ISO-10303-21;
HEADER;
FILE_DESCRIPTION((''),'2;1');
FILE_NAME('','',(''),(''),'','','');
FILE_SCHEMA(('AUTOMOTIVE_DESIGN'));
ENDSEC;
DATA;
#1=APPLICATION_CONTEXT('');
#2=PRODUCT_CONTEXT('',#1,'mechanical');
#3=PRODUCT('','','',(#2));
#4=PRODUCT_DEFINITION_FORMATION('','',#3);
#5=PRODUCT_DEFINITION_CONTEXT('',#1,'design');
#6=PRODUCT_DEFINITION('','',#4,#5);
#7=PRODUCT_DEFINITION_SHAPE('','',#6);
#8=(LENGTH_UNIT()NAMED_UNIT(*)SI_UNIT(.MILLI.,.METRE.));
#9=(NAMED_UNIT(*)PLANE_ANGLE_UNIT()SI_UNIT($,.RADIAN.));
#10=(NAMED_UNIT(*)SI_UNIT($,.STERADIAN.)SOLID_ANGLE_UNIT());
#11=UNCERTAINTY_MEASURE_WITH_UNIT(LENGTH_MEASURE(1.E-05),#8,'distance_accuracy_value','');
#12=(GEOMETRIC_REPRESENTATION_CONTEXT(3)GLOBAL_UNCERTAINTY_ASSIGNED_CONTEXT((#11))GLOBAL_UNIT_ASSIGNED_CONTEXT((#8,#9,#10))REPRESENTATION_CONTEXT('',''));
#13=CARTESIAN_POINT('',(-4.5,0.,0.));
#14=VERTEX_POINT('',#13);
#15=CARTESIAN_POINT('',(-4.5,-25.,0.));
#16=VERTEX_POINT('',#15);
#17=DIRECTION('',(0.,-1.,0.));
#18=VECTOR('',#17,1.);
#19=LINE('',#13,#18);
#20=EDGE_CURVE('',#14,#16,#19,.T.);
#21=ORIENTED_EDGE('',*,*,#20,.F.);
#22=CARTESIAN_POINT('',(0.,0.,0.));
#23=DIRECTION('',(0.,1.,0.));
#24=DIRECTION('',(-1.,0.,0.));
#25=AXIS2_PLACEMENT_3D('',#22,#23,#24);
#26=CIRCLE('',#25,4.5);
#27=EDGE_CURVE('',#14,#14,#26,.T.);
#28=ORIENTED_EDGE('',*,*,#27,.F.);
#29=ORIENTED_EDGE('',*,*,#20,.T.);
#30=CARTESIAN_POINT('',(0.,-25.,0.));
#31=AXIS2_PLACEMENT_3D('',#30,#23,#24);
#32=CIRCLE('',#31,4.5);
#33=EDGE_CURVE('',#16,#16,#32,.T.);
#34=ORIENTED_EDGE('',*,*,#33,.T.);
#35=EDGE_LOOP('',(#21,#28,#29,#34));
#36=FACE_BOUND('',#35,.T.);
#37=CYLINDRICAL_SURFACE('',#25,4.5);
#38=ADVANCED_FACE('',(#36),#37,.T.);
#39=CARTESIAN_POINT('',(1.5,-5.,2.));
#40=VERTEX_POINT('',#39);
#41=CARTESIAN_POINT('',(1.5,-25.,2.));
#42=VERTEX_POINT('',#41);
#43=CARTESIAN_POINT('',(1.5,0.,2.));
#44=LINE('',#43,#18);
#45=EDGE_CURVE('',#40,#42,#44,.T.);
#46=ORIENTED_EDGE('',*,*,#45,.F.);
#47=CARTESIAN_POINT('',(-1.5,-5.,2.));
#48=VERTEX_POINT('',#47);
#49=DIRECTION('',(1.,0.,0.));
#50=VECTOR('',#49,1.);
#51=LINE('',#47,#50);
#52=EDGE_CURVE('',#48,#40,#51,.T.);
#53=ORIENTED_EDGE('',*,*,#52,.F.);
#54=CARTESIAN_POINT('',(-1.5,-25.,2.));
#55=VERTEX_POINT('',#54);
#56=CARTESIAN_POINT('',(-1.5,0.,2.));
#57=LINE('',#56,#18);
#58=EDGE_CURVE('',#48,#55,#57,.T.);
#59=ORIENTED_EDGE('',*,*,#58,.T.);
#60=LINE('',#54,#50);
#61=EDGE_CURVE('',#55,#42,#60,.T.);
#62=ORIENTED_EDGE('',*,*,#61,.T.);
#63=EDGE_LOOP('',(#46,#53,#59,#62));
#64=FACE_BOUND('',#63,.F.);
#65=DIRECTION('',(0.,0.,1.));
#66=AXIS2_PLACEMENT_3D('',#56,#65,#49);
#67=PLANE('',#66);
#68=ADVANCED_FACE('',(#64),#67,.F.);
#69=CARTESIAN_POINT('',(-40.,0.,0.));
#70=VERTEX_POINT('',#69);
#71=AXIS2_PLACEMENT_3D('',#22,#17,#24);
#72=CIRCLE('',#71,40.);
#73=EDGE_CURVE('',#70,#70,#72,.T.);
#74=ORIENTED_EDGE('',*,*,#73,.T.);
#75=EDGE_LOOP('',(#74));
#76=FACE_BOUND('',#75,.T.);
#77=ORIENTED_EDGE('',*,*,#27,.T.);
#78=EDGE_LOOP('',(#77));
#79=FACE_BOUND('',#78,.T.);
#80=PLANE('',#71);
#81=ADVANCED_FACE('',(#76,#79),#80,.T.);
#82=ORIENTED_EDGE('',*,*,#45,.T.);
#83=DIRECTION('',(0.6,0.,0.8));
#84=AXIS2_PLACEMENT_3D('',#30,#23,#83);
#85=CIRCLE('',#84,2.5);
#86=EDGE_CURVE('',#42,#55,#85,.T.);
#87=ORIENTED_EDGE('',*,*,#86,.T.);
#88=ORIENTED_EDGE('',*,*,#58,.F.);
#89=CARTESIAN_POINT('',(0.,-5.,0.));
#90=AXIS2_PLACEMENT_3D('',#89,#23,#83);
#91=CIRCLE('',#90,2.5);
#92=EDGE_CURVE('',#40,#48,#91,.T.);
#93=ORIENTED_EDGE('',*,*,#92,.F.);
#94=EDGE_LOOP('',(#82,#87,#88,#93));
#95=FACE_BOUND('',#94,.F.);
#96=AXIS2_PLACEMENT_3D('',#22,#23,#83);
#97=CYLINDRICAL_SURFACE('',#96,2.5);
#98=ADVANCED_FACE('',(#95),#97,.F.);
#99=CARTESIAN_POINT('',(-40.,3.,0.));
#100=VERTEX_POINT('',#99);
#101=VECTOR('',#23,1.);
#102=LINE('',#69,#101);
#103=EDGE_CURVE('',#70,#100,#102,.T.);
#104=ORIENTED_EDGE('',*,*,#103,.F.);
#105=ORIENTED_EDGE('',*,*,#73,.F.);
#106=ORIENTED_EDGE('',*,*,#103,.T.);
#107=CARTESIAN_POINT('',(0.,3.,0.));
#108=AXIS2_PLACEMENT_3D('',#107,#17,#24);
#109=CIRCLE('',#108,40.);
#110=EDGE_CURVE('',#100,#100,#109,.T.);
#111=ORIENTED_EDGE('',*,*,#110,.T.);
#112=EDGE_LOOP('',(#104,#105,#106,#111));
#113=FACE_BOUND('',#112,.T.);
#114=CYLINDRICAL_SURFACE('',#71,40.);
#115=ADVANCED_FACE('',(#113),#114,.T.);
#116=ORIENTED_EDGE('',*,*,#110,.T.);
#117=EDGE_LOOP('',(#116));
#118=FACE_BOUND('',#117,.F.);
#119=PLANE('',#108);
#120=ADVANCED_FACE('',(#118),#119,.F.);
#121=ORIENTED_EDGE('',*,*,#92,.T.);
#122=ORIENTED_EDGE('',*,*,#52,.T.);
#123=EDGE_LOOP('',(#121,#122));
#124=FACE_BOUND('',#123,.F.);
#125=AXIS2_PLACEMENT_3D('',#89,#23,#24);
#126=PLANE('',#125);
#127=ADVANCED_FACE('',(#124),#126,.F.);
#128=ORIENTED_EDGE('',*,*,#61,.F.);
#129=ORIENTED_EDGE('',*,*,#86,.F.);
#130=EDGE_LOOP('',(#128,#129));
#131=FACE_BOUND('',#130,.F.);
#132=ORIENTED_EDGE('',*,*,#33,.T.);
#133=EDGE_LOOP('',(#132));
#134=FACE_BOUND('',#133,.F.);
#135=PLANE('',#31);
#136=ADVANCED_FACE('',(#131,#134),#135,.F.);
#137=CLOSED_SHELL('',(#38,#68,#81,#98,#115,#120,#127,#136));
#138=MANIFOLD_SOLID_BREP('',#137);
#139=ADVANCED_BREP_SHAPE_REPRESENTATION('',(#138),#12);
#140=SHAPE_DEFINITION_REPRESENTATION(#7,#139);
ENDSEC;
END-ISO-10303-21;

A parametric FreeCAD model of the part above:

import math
import FreeCAD as App
import Part
import Sketcher

V = App.Vector
Q = App.Units.Quantity

doc = App.newDocument("Part")
body = doc.addObject("PartDesign::Body", "Body")

sketch1 = body.newObject("Sketcher::SketchObject", "Sketch")
sketch1.AttachmentSupport = (doc.getObject("XZ_Plane"), [""])
sketch1.MapMode = "FlatFace"
sketch1.addGeometry(Part.Circle(V(0, 0, 0), V(0, 0, 1), 4.5), False)
sketch1.addGeometry(Part.ArcOfCircle(Part.Circle(V(0, 0, 0), V(0, 0, 1), 2.5), math.radians(127), math.radians(413)), False)
sketch1.addGeometry(Part.LineSegment(V(1.5, 2, 0), V(-1.5, 2, 0)), False)
sketch1.addConstraint(Sketcher.Constraint("Coincident", 1, 1, 2, 2))
sketch1.addConstraint(Sketcher.Constraint("Coincident", 2, 1, 1, 2))
sketch1.addConstraint(Sketcher.Constraint("Horizontal", 2))
sketch1.addConstraint(Sketcher.Constraint("Coincident", 0, 3, -1, 1))
sketch1.addConstraint(Sketcher.Constraint("Coincident", 1, 3, -1, 1))
sketch1.addConstraint(Sketcher.Constraint("Diameter", 0, Q("9 mm")))
sketch1.addConstraint(Sketcher.Constraint("Radius", 1, Q("2.5 mm")))
sketch1.addConstraint(Sketcher.Constraint("DistanceX", 2, 2, 2, 1, Q("3 mm")))
pad1 = body.newObject("PartDesign::Pad", "Pad")
pad1.Profile = sketch1
pad1.Length = 25

sketch2 = body.newObject("Sketcher::SketchObject", "Sketch001")
sketch2.AttachmentSupport = (doc.getObject("XZ_Plane"), [""])
sketch2.MapMode = "FlatFace"
sketch2.addGeometry(Part.Circle(V(0, 0, 0), V(0, 0, 1), 40), False)
sketch2.addConstraint(Sketcher.Constraint("Coincident", 0, 3, -1, 1))
sketch2.addConstraint(Sketcher.Constraint("Diameter", 0, Q("80 mm")))
pad2 = body.newObject("PartDesign::Pad", "Pad001")
pad2.Profile = sketch2
pad2.Length = 3
pad2.Reversed = True

sketch3 = body.newObject("Sketcher::SketchObject", "Sketch002")
sketch3.AttachmentSupport = (doc.getObject("XZ_Plane"), [""])
sketch3.MapMode = "FlatFace"
sketch3.addGeometry(Part.LineSegment(V(-1.5, 2, 0), V(1.5, 2, 0)), False)
sketch3.addGeometry(Part.ArcOfCircle(Part.Circle(V(0, 0, 0), V(0, 0, 1), 2.5), math.radians(127), math.radians(413)), False)
sketch3.addConstraint(Sketcher.Constraint("Coincident", 0, 1, 1, 1))
sketch3.addConstraint(Sketcher.Constraint("Coincident", 1, 2, 0, 2))
sketch3.addConstraint(Sketcher.Constraint("Horizontal", 0))
sketch3.addConstraint(Sketcher.Constraint("Coincident", 1, 3, -1, 1))
sketch3.addConstraint(Sketcher.Constraint("Radius", 1, Q("2.5 mm")))
sketch3.addConstraint(Sketcher.Constraint("DistanceX", 0, 1, 0, 2, Q("3 mm")))
pad3 = body.newObject("PartDesign::Pad", "Pad002")
pad3.Profile = sketch3
pad3.Length = 5

doc.recompute()
